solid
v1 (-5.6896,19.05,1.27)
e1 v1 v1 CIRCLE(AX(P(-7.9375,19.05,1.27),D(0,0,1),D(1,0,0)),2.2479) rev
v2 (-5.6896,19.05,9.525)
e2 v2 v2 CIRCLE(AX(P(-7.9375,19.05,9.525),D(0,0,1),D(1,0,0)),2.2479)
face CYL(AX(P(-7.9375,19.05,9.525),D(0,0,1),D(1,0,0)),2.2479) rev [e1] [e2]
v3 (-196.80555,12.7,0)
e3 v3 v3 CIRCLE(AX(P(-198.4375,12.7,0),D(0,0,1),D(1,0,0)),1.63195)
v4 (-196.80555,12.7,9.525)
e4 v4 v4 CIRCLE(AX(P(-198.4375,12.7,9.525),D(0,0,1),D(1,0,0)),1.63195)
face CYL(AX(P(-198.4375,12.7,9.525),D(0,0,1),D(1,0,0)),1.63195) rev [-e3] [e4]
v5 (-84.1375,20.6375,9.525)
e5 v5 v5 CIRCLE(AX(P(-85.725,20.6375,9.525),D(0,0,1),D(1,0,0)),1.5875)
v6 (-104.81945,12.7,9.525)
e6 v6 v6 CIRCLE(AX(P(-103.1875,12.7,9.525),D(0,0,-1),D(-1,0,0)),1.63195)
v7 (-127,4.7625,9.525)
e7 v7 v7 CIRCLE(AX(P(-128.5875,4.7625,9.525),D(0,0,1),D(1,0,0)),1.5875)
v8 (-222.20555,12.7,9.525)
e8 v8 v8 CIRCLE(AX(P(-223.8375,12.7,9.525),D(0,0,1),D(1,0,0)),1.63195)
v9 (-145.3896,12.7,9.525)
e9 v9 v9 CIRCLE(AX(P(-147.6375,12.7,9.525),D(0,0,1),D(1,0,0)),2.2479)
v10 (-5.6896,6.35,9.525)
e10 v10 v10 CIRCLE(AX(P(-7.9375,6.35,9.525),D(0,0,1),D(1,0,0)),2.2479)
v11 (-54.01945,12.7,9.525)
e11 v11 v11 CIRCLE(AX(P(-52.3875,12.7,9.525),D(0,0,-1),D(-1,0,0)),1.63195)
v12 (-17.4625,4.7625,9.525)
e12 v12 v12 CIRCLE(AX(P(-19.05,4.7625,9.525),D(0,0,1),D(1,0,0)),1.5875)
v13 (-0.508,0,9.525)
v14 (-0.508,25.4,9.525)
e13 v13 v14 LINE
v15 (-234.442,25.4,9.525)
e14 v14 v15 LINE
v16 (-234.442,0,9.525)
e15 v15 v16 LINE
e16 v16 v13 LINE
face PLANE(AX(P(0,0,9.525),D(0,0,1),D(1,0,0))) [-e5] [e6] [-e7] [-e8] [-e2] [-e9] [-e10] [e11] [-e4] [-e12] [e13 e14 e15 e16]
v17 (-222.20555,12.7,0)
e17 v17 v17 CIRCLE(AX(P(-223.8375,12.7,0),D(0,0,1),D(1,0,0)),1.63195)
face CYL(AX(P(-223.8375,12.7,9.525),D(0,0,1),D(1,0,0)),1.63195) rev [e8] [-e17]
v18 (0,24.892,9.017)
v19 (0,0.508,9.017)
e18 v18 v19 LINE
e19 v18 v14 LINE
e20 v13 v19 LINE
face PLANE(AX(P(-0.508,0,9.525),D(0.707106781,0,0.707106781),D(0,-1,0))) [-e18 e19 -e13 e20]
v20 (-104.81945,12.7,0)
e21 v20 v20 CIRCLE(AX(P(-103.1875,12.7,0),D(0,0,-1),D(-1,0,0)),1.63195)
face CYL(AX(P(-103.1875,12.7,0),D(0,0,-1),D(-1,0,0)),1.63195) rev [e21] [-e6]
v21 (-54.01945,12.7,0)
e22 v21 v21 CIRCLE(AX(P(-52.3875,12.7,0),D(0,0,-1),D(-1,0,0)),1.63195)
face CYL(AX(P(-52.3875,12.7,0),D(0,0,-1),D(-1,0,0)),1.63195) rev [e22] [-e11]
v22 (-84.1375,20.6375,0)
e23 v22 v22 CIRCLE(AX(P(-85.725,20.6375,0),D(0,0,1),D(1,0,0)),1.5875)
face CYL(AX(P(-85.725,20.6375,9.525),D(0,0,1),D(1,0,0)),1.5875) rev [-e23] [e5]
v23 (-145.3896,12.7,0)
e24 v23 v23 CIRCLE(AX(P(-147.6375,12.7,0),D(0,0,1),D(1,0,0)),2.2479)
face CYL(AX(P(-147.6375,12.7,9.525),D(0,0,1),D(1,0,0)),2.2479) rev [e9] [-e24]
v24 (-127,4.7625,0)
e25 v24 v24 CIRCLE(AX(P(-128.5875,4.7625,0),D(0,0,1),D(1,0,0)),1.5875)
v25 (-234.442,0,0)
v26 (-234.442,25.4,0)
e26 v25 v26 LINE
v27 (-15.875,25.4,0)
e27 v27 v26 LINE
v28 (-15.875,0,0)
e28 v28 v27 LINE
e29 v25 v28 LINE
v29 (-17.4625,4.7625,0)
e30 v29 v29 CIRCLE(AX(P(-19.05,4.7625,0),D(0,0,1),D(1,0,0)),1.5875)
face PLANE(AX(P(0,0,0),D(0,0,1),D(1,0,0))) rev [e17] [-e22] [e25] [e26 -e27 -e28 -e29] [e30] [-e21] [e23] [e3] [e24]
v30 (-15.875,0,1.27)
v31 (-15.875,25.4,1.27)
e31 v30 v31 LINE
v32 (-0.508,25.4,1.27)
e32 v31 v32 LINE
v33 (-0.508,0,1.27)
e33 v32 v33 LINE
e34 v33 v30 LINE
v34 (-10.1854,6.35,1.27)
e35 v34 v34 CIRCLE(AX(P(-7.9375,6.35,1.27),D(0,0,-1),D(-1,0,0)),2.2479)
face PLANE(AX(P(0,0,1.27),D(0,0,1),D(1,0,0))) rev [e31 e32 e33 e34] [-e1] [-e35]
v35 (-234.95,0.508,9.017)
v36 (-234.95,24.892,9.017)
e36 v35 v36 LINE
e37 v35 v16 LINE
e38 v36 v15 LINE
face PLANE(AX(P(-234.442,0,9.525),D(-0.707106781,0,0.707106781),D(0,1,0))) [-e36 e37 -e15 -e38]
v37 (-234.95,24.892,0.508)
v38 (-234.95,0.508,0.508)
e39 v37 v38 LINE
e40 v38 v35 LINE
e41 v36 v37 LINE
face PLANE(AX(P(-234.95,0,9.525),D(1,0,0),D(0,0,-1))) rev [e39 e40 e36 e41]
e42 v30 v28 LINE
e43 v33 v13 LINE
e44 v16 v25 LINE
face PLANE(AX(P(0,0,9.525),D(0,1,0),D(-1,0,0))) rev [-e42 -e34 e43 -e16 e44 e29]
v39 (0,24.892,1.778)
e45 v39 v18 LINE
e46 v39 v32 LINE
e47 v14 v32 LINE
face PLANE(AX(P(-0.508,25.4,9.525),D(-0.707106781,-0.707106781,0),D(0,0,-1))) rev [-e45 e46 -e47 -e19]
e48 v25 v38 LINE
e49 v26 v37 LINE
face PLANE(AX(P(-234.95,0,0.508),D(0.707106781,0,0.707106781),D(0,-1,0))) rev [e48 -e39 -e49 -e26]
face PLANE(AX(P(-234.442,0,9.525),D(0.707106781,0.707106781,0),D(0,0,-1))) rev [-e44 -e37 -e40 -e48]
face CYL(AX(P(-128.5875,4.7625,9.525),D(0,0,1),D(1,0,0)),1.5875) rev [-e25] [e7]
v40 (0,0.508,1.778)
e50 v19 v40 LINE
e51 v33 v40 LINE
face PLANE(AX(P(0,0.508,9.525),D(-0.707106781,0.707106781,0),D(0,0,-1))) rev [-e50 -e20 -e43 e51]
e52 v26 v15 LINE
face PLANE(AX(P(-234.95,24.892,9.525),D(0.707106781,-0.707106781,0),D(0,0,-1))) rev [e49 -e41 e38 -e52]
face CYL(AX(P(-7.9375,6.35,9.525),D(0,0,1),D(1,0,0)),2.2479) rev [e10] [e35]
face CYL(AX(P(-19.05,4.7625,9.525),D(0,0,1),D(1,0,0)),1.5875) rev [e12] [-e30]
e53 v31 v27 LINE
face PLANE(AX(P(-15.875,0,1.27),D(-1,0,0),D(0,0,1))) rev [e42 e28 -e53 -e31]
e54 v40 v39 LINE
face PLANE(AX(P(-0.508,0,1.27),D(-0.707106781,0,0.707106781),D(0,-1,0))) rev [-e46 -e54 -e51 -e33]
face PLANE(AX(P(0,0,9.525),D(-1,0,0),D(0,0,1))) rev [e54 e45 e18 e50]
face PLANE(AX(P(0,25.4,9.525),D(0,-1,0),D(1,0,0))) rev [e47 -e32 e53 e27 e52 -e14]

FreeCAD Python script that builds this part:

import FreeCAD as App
import Part
import Sketcher
Q = App.Units.Quantity


def edges_at(feature, points):
    """Names of the edges that pass closest to the given points."""
    edges = feature.Shape.Edges
    near = lambda p: min(range(len(edges)), key=lambda i: edges[i].distToShape(Part.Vertex(*p))[0])
    return sorted({f"Edge{near(p) + 1}" for p in points})

doc = App.newDocument("Part")
body = doc.addObject("PartDesign::Body", "Body")

# Sketch on XY plane
sketch1 = body.newObject("Sketcher::SketchObject", "Sketch")
sketch1.AttachmentSupport = (doc.getObject("XY_Plane"), [""])
sketch1.MapMode = "FlatFace"
sketch1.addGeometry([
    Part.LineSegment(App.Vector(-234.95, 25.4, 0), App.Vector(-234.95, 0, 0)),
    Part.LineSegment(App.Vector(-234.95, 0, 0), App.Vector(0, 0, 0)),
    Part.LineSegment(App.Vector(0, 0, 0), App.Vector(0, 25.4, 0)),
    Part.LineSegment(App.Vector(0, 25.4, 0), App.Vector(-234.95, 25.4, 0)),
], False)
sketch1.addConstraint([
    Sketcher.Constraint("Coincident", 0, 2, 1, 1),
    Sketcher.Constraint("Coincident", 1, 2, 2, 1),
    Sketcher.Constraint("Coincident", 2, 2, 3, 1),
    Sketcher.Constraint("Coincident", 3, 2, 0, 1),
    Sketcher.Constraint("Vertical", 0),
    Sketcher.Constraint("Horizontal", 1),
    Sketcher.Constraint("Vertical", 2),
    Sketcher.Constraint("Horizontal", 3),
    Sketcher.Constraint("Coincident", 1, 2, -1, 1),
    Sketcher.Constraint("DistanceY", 0, 2, 0, 1, Q("1 in")),
    Sketcher.Constraint("DistanceX", 1, 1, 1, 2, Q("9.25 in")),
])
pad1 = body.newObject("PartDesign::Pad", "Pad")
pad1.Profile = sketch1
pad1.Length = Q("0.375 in")

# Sketch on XY plane
sketch2 = body.newObject("Sketcher::SketchObject", "Sketch001")
sketch2.AttachmentSupport = (doc.getObject("XY_Plane"), [""])
sketch2.MapMode = "FlatFace"
sketch2.AttachmentOffset = App.Placement(App.Vector(0, 0, 0.375 * 25.4), App.Rotation())
sketch2.addGeometry([
    Part.Circle(App.Vector(-7.9375, 6.35, 0), App.Vector(0, 0, 1), 2.2479),
    Part.Circle(App.Vector(-7.9375, 19.05, 0), App.Vector(0, 0, 1), 2.2479),
], False)
sketch2.addConstraint([
    Sketcher.Constraint("Equal", 0, 1),
    Sketcher.Constraint("Vertical", 0, 3, 1, 3),
    Sketcher.Constraint("Diameter", 0, Q("0.177 in")),
    Sketcher.Constraint("DistanceY", 0, 3, 1, 3, Q("0.5 in")),
    Sketcher.Constraint("DistanceY", -1, 1, 0, 3, Q("0.25 in")),
    Sketcher.Constraint("DistanceX", 0, 3, -1, 1, Q("0.3125 in")),
])
doc.recompute()
hole = body.newObject("PartDesign::Hole", "Hole")
hole.Profile = sketch2
hole.ThreadType = "None"
hole.Diameter = Q("0.177 in")
hole.DepthType = "Dimension"
hole.Depth = Q("1 in")
hole.DrillPoint = "Angled"
hole.DrillPointAngle = 118

# Sketch on XY plane
sketch3 = body.newObject("Sketcher::SketchObject", "Sketch002")
sketch3.AttachmentSupport = (doc.getObject("XY_Plane"), [""])
sketch3.MapMode = "FlatFace"
sketch3.AttachmentOffset = App.Placement(App.Vector(0, 0, 0.375 * 25.4), App.Rotation())
sketch3.addGeometry(Part.Circle(App.Vector(-147.6375, 12.7, 0), App.Vector(0, 0, 1), 2.2479), False)
sketch3.addConstraint([
    Sketcher.Constraint("Diameter", 0, Q("0.177 in")),
    Sketcher.Constraint("DistanceY", -1, 1, 0, 3, Q("0.5 in")),
    Sketcher.Constraint("DistanceX", 0, 3, -1, 1, Q("5.8125 in")),
])
doc.recompute()
hole2 = body.newObject("PartDesign::Hole", "Hole001")
hole2.Profile = sketch3
hole2.ThreadType = "None"
hole2.Diameter = Q("0.177 in")
hole2.DepthType = "Dimension"
hole2.Depth = Q("0.75 in")
hole2.DrillPoint = "Angled"
hole2.DrillPointAngle = 118

# Sketch on XY plane
sketch4 = body.newObject("Sketcher::SketchObject", "Sketch003")
sketch4.AttachmentSupport = (doc.getObject("XY_Plane"), [""])
sketch4.MapMode = "FlatFace"
sketch4.addGeometry([
    Part.Circle(App.Vector(-103.1875, 12.7, 0), App.Vector(0, 0, 1), 1.63195),
    Part.Circle(App.Vector(-52.3875, 12.7, 0), App.Vector(0, 0, 1), 1.63195),
], False)
sketch4.addConstraint([
    Sketcher.Constraint("Equal", 0, 1),
    Sketcher.Constraint("Horizontal", 0, 3, 1, 3),
    Sketcher.Constraint("DistanceX", 0, 3, 1, 3, Q("2 in")),
    Sketcher.Constraint("Diameter", 0, Q("0.1285 in")),
    Sketcher.Constraint("DistanceY", -1, 1, 0, 3, Q("0.5 in")),
    Sketcher.Constraint("DistanceX", 0, 3, -1, 1, Q("4.0625 in")),
])
doc.recompute()
hole3 = body.newObject("PartDesign::Hole", "Hole002")
hole3.Profile = sketch4
hole3.ThreadType = "None"
hole3.Diameter = Q("0.1285 in")
hole3.DepthType = "ThroughAll"
hole3.Reversed = True

# Sketch on XY plane
sketch5 = body.newObject("Sketcher::SketchObject", "Sketch004")
sketch5.AttachmentSupport = (doc.getObject("XY_Plane"), [""])
sketch5.MapMode = "FlatFace"
sketch5.AttachmentOffset = App.Placement(App.Vector(0, 0, 0.375 * 25.4), App.Rotation())
sketch5.addGeometry([
    Part.Circle(App.Vector(-223.8375, 12.7, 0), App.Vector(0, 0, 1), 1.63195),
    Part.Circle(App.Vector(-198.4375, 12.7, 0), App.Vector(0, 0, 1), 1.63195),
], False)
sketch5.addConstraint([
    Sketcher.Constraint("Equal", 0, 1),
    Sketcher.Constraint("Horizontal", 0, 3, 1, 3),
    Sketcher.Constraint("DistanceX", 0, 3, 1, 3, Q("1 in")),
    Sketcher.Constraint("Diameter", 0, Q("0.1285 in")),
    Sketcher.Constraint("DistanceY", -1, 1, 0, 3, Q("0.5 in")),
    Sketcher.Constraint("DistanceX", 0, 3, -1, 1, Q("8.8125 in")),
])
doc.recompute()
hole4 = body.newObject("PartDesign::Hole", "Hole003")
hole4.Profile = sketch5
hole4.ThreadType = "None"
hole4.Diameter = Q("0.1285 in")
hole4.DepthType = "Dimension"
hole4.Depth = Q("0.375 in")
hole4.DrillPoint = "Flat"

# Sketch on XY plane
sketch6 = body.newObject("Sketcher::SketchObject", "Sketch005")
sketch6.AttachmentSupport = (doc.getObject("XY_Plane"), [""])
sketch6.MapMode = "FlatFace"
sketch6.AttachmentOffset = App.Placement(App.Vector(0, 0, 0.375 * 25.4), App.Rotation())
sketch6.addGeometry([
    Part.Circle(App.Vector(-19.05, 4.7625, 0), App.Vector(0, 0, 1), 1.5875),
    Part.Circle(App.Vector(-85.725, 20.6375, 0), App.Vector(0, 0, 1), 1.5875),
    Part.Circle(App.Vector(-128.5875, 4.7625, 0), App.Vector(0, 0, 1), 1.5875),
], False)
sketch6.addConstraint([
    Sketcher.Constraint("Equal", 0, 1),
    Sketcher.Constraint("Equal", 1, 2),
    Sketcher.Constraint("Horizontal", 0, 3, 2, 3),
    Sketcher.Constraint("Diameter", 0, Q("0.125 in")),
    Sketcher.Constraint("DistanceX", 0, 3, -1, 1, Q("0.75 in")),
    Sketcher.Constraint("DistanceY", -1, 1, 0, 3, Q("0.1875 in")),
    Sketcher.Constraint("DistanceX", 1, 3, -1, 1, Q("3.375 in")),
    Sketcher.Constraint("DistanceY", -1, 1, 1, 3, Q("0.8125 in")),
    Sketcher.Constraint("DistanceX", 2, 3, -1, 1, Q("5.0625 in")),
])
doc.recompute()
hole5 = body.newObject("PartDesign::Hole", "Hole004")
hole5.Profile = sketch6
hole5.ThreadType = "None"
hole5.Diameter = Q("0.125 in")
hole5.DepthType = "Dimension"
hole5.Depth = Q("0.375 in")
hole5.DrillPoint = "Flat"

# Sketch on XY plane
sketch7 = body.newObject("Sketcher::SketchObject", "Sketch006")
sketch7.AttachmentSupport = (doc.getObject("XY_Plane"), [""])
sketch7.MapMode = "FlatFace"
sketch7.addGeometry([
    Part.LineSegment(App.Vector(0, 25.4, 0), App.Vector(0, 0, 0)),  # 0
    Part.LineSegment(App.Vector(0, 0, 0), App.Vector(-15.875, 0, 0)),  # 1
    Part.LineSegment(App.Vector(-15.875, 0, 0), App.Vector(-15.875, 25.4, 0)),  # 2
    Part.LineSegment(App.Vector(-15.875, 25.4, 0), App.Vector(0, 25.4, 0)),  # 3
    Part.Circle(App.Vector(-7.9375, 6.35, 0), App.Vector(0, 0, 1), 2.2479),  # 4
], False)
sketch7.addConstraint([
    Sketcher.Constraint("Coincident", 0, 2, 1, 1),
    Sketcher.Constraint("Coincident", 1, 2, 2, 1),
    Sketcher.Constraint("Coincident", 2, 2, 3, 1),
    Sketcher.Constraint("Coincident", 3, 2, 0, 1),
    Sketcher.Constraint("Vertical", 0),
    Sketcher.Constraint("Horizontal", 1),
    Sketcher.Constraint("Vertical", 2),
    Sketcher.Constraint("Horizontal", 3),
    Sketcher.Constraint("Coincident", 0, 2, -1, 1),
    Sketcher.Constraint("DistanceY", 0, 2, 0, 1, Q("1 in")),
    Sketcher.Constraint("Diameter", 4, Q("0.177 in")),
    Sketcher.Constraint("DistanceX", 1, 2, 1, 1, Q("0.625 in")),
    Sketcher.Constraint("DistanceY", -1, 1, 4, 3, Q("0.25 in")),
    Sketcher.Constraint("DistanceX", 4, 3, -1, 1, Q("0.3125 in")),
])
pocket1 = body.newObject("PartDesign::Pocket", "Pocket")
pocket1.Profile = sketch7
pocket1.Length = Q("0.05 in")
pocket1.Reversed = True
doc.recompute()

chamfer = body.newObject("PartDesign::Chamfer", "Chamfer")
chamfer.Base = (pocket1, edges_at(pocket1, [
    (-234.95, 12.7, 9.525),
    (0, 12.7, 9.525),
    (-234.95, 12.7, 0),
    (0, 0, 5.397),
    (-234.95, 0, 4.763),
    (-234.95, 25.4, 4.763),
    (0, 25.4, 5.397),
    (0, 12.7, 1.27),
]))
chamfer.Size = Q("0.02 in")

doc.recompute()
